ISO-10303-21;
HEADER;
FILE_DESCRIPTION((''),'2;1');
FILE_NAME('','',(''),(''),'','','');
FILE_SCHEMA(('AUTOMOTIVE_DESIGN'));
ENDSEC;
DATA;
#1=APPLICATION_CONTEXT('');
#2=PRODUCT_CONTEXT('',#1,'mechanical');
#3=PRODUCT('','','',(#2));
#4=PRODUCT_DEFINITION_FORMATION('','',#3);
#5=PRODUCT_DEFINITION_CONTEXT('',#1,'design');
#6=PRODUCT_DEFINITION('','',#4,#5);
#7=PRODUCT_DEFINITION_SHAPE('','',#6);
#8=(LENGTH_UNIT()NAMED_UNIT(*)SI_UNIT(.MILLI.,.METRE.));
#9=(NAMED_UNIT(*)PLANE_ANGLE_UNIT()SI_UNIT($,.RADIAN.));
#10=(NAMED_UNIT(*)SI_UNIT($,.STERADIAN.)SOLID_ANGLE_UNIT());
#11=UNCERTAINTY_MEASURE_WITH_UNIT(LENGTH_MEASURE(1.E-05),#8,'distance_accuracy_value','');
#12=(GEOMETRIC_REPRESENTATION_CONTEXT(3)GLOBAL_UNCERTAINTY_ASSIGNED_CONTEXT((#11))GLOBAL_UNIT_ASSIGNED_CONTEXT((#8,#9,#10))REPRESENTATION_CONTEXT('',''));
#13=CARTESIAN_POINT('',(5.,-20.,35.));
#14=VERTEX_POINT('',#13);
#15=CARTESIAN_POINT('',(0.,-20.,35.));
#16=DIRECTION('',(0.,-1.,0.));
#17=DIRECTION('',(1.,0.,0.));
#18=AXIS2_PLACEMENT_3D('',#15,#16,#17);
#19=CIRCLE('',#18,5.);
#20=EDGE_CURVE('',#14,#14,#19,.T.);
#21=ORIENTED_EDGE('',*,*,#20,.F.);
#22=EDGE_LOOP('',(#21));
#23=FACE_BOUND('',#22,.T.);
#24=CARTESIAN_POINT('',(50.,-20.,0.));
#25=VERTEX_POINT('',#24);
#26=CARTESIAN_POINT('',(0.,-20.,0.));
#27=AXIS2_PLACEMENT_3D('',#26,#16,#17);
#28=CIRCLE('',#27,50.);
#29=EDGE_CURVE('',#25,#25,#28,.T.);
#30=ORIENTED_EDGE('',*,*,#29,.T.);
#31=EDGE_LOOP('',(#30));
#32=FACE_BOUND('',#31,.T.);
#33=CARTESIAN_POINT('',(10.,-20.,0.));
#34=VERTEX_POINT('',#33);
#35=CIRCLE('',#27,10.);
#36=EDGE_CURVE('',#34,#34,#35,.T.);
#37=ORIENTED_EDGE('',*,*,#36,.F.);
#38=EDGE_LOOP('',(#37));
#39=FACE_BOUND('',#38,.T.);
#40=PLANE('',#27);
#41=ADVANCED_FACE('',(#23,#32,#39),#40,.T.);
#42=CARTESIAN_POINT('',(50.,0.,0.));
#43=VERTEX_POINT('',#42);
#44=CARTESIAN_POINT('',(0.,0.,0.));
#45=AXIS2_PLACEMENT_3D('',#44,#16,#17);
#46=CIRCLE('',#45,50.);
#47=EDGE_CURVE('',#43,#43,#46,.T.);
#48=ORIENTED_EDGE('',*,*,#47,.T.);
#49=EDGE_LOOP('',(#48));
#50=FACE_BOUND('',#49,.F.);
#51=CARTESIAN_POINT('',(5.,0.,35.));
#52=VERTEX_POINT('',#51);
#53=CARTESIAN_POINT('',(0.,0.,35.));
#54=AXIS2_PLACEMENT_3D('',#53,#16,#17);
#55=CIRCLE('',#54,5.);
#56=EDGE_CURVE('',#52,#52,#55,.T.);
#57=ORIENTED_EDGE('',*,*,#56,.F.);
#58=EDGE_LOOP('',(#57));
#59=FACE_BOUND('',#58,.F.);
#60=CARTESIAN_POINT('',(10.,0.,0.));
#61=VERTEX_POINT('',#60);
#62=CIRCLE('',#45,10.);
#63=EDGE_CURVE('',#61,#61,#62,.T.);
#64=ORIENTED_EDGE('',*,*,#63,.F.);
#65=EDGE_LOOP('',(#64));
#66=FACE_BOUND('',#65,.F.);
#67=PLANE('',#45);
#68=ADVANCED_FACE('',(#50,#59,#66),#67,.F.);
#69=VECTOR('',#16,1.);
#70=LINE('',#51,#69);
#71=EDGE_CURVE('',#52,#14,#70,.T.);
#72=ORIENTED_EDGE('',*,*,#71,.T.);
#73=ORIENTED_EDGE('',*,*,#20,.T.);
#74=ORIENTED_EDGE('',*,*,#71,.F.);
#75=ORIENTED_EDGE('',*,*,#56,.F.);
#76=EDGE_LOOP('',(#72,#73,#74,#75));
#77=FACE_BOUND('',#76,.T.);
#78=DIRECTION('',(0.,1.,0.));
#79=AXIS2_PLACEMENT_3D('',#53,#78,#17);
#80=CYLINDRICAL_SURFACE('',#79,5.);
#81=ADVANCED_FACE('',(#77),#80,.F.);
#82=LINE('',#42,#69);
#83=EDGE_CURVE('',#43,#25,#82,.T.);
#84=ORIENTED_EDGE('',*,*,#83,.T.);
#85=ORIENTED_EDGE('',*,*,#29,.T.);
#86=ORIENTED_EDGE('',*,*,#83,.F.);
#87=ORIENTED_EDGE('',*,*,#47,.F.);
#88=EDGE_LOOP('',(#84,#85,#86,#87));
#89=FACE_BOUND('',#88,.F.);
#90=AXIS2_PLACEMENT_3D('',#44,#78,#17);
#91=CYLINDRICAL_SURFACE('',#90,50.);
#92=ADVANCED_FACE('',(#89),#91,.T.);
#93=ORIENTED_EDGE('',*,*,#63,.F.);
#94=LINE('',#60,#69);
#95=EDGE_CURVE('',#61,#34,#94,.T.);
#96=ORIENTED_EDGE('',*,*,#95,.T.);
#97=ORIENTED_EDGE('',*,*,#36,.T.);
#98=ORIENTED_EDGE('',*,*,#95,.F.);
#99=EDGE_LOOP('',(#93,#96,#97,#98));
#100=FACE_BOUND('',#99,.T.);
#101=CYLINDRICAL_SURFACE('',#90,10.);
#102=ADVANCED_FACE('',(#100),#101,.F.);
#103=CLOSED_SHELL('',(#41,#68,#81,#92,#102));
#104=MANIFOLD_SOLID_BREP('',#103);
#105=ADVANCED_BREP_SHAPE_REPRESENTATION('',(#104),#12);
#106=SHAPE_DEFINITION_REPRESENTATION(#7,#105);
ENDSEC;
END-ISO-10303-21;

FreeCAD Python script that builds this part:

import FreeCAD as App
import Part
import Sketcher
Q = App.Units.Quantity

doc = App.newDocument("Part")
params = doc.addObject("Spreadsheet::Sheet", "Params")
for row, (alias, value) in enumerate([
    ("sketch1_diameter", "100 mm"),
    ("sketch1_diameter2", "20 mm"),
    ("sketch1_diameter3", "10 mm"),
    ("pad1_length", "20 mm"),
], start=1):
    params.set(f"A{row}", alias)
    params.set(f"B{row}", "=" + value)
    params.setAlias(f"B{row}", alias)

body = doc.addObject("PartDesign::Body", "Body")

sketch1 = body.newObject("Sketcher::SketchObject", "Sketch")
sketch1.AttachmentSupport = (doc.getObject("XZ_Plane"), [""])
sketch1.MapMode = "FlatFace"
sketch1.addGeometry([
    Part.Circle(App.Vector(0, 0, 0), App.Vector(0, 0, 1), 50),
    Part.Circle(App.Vector(0, 0, 0), App.Vector(0, 0, 1), 10),
    Part.Circle(App.Vector(0, 35, 0), App.Vector(0, 0, 1), 5),
], False)
sketch1.addConstraint([
    Sketcher.Constraint("Coincident", 0, 3, -1, 1),
    Sketcher.Constraint("Coincident", 1, 3, -1, 1),
    Sketcher.Constraint("PointOnObject", 2, 3, -2),
    Sketcher.Constraint("Diameter", 0, Q("100 mm")),
    Sketcher.Constraint("Diameter", 1, Q("20 mm")),
    Sketcher.Constraint("Diameter", 2, Q("10 mm")),
    Sketcher.Constraint("DistanceY", -1, 1, 2, 3, Q("35 mm")),
])
sketch1.setExpression("Constraints[3]", "Params.sketch1_diameter")
sketch1.setExpression("Constraints[4]", "Params.sketch1_diameter2")
sketch1.setExpression("Constraints[5]", "Params.sketch1_diameter3")
pad1 = body.newObject("PartDesign::Pad", "Pad")
pad1.Profile = sketch1
pad1.setExpression("Length", "Params.pad1_length")

doc.recompute()
